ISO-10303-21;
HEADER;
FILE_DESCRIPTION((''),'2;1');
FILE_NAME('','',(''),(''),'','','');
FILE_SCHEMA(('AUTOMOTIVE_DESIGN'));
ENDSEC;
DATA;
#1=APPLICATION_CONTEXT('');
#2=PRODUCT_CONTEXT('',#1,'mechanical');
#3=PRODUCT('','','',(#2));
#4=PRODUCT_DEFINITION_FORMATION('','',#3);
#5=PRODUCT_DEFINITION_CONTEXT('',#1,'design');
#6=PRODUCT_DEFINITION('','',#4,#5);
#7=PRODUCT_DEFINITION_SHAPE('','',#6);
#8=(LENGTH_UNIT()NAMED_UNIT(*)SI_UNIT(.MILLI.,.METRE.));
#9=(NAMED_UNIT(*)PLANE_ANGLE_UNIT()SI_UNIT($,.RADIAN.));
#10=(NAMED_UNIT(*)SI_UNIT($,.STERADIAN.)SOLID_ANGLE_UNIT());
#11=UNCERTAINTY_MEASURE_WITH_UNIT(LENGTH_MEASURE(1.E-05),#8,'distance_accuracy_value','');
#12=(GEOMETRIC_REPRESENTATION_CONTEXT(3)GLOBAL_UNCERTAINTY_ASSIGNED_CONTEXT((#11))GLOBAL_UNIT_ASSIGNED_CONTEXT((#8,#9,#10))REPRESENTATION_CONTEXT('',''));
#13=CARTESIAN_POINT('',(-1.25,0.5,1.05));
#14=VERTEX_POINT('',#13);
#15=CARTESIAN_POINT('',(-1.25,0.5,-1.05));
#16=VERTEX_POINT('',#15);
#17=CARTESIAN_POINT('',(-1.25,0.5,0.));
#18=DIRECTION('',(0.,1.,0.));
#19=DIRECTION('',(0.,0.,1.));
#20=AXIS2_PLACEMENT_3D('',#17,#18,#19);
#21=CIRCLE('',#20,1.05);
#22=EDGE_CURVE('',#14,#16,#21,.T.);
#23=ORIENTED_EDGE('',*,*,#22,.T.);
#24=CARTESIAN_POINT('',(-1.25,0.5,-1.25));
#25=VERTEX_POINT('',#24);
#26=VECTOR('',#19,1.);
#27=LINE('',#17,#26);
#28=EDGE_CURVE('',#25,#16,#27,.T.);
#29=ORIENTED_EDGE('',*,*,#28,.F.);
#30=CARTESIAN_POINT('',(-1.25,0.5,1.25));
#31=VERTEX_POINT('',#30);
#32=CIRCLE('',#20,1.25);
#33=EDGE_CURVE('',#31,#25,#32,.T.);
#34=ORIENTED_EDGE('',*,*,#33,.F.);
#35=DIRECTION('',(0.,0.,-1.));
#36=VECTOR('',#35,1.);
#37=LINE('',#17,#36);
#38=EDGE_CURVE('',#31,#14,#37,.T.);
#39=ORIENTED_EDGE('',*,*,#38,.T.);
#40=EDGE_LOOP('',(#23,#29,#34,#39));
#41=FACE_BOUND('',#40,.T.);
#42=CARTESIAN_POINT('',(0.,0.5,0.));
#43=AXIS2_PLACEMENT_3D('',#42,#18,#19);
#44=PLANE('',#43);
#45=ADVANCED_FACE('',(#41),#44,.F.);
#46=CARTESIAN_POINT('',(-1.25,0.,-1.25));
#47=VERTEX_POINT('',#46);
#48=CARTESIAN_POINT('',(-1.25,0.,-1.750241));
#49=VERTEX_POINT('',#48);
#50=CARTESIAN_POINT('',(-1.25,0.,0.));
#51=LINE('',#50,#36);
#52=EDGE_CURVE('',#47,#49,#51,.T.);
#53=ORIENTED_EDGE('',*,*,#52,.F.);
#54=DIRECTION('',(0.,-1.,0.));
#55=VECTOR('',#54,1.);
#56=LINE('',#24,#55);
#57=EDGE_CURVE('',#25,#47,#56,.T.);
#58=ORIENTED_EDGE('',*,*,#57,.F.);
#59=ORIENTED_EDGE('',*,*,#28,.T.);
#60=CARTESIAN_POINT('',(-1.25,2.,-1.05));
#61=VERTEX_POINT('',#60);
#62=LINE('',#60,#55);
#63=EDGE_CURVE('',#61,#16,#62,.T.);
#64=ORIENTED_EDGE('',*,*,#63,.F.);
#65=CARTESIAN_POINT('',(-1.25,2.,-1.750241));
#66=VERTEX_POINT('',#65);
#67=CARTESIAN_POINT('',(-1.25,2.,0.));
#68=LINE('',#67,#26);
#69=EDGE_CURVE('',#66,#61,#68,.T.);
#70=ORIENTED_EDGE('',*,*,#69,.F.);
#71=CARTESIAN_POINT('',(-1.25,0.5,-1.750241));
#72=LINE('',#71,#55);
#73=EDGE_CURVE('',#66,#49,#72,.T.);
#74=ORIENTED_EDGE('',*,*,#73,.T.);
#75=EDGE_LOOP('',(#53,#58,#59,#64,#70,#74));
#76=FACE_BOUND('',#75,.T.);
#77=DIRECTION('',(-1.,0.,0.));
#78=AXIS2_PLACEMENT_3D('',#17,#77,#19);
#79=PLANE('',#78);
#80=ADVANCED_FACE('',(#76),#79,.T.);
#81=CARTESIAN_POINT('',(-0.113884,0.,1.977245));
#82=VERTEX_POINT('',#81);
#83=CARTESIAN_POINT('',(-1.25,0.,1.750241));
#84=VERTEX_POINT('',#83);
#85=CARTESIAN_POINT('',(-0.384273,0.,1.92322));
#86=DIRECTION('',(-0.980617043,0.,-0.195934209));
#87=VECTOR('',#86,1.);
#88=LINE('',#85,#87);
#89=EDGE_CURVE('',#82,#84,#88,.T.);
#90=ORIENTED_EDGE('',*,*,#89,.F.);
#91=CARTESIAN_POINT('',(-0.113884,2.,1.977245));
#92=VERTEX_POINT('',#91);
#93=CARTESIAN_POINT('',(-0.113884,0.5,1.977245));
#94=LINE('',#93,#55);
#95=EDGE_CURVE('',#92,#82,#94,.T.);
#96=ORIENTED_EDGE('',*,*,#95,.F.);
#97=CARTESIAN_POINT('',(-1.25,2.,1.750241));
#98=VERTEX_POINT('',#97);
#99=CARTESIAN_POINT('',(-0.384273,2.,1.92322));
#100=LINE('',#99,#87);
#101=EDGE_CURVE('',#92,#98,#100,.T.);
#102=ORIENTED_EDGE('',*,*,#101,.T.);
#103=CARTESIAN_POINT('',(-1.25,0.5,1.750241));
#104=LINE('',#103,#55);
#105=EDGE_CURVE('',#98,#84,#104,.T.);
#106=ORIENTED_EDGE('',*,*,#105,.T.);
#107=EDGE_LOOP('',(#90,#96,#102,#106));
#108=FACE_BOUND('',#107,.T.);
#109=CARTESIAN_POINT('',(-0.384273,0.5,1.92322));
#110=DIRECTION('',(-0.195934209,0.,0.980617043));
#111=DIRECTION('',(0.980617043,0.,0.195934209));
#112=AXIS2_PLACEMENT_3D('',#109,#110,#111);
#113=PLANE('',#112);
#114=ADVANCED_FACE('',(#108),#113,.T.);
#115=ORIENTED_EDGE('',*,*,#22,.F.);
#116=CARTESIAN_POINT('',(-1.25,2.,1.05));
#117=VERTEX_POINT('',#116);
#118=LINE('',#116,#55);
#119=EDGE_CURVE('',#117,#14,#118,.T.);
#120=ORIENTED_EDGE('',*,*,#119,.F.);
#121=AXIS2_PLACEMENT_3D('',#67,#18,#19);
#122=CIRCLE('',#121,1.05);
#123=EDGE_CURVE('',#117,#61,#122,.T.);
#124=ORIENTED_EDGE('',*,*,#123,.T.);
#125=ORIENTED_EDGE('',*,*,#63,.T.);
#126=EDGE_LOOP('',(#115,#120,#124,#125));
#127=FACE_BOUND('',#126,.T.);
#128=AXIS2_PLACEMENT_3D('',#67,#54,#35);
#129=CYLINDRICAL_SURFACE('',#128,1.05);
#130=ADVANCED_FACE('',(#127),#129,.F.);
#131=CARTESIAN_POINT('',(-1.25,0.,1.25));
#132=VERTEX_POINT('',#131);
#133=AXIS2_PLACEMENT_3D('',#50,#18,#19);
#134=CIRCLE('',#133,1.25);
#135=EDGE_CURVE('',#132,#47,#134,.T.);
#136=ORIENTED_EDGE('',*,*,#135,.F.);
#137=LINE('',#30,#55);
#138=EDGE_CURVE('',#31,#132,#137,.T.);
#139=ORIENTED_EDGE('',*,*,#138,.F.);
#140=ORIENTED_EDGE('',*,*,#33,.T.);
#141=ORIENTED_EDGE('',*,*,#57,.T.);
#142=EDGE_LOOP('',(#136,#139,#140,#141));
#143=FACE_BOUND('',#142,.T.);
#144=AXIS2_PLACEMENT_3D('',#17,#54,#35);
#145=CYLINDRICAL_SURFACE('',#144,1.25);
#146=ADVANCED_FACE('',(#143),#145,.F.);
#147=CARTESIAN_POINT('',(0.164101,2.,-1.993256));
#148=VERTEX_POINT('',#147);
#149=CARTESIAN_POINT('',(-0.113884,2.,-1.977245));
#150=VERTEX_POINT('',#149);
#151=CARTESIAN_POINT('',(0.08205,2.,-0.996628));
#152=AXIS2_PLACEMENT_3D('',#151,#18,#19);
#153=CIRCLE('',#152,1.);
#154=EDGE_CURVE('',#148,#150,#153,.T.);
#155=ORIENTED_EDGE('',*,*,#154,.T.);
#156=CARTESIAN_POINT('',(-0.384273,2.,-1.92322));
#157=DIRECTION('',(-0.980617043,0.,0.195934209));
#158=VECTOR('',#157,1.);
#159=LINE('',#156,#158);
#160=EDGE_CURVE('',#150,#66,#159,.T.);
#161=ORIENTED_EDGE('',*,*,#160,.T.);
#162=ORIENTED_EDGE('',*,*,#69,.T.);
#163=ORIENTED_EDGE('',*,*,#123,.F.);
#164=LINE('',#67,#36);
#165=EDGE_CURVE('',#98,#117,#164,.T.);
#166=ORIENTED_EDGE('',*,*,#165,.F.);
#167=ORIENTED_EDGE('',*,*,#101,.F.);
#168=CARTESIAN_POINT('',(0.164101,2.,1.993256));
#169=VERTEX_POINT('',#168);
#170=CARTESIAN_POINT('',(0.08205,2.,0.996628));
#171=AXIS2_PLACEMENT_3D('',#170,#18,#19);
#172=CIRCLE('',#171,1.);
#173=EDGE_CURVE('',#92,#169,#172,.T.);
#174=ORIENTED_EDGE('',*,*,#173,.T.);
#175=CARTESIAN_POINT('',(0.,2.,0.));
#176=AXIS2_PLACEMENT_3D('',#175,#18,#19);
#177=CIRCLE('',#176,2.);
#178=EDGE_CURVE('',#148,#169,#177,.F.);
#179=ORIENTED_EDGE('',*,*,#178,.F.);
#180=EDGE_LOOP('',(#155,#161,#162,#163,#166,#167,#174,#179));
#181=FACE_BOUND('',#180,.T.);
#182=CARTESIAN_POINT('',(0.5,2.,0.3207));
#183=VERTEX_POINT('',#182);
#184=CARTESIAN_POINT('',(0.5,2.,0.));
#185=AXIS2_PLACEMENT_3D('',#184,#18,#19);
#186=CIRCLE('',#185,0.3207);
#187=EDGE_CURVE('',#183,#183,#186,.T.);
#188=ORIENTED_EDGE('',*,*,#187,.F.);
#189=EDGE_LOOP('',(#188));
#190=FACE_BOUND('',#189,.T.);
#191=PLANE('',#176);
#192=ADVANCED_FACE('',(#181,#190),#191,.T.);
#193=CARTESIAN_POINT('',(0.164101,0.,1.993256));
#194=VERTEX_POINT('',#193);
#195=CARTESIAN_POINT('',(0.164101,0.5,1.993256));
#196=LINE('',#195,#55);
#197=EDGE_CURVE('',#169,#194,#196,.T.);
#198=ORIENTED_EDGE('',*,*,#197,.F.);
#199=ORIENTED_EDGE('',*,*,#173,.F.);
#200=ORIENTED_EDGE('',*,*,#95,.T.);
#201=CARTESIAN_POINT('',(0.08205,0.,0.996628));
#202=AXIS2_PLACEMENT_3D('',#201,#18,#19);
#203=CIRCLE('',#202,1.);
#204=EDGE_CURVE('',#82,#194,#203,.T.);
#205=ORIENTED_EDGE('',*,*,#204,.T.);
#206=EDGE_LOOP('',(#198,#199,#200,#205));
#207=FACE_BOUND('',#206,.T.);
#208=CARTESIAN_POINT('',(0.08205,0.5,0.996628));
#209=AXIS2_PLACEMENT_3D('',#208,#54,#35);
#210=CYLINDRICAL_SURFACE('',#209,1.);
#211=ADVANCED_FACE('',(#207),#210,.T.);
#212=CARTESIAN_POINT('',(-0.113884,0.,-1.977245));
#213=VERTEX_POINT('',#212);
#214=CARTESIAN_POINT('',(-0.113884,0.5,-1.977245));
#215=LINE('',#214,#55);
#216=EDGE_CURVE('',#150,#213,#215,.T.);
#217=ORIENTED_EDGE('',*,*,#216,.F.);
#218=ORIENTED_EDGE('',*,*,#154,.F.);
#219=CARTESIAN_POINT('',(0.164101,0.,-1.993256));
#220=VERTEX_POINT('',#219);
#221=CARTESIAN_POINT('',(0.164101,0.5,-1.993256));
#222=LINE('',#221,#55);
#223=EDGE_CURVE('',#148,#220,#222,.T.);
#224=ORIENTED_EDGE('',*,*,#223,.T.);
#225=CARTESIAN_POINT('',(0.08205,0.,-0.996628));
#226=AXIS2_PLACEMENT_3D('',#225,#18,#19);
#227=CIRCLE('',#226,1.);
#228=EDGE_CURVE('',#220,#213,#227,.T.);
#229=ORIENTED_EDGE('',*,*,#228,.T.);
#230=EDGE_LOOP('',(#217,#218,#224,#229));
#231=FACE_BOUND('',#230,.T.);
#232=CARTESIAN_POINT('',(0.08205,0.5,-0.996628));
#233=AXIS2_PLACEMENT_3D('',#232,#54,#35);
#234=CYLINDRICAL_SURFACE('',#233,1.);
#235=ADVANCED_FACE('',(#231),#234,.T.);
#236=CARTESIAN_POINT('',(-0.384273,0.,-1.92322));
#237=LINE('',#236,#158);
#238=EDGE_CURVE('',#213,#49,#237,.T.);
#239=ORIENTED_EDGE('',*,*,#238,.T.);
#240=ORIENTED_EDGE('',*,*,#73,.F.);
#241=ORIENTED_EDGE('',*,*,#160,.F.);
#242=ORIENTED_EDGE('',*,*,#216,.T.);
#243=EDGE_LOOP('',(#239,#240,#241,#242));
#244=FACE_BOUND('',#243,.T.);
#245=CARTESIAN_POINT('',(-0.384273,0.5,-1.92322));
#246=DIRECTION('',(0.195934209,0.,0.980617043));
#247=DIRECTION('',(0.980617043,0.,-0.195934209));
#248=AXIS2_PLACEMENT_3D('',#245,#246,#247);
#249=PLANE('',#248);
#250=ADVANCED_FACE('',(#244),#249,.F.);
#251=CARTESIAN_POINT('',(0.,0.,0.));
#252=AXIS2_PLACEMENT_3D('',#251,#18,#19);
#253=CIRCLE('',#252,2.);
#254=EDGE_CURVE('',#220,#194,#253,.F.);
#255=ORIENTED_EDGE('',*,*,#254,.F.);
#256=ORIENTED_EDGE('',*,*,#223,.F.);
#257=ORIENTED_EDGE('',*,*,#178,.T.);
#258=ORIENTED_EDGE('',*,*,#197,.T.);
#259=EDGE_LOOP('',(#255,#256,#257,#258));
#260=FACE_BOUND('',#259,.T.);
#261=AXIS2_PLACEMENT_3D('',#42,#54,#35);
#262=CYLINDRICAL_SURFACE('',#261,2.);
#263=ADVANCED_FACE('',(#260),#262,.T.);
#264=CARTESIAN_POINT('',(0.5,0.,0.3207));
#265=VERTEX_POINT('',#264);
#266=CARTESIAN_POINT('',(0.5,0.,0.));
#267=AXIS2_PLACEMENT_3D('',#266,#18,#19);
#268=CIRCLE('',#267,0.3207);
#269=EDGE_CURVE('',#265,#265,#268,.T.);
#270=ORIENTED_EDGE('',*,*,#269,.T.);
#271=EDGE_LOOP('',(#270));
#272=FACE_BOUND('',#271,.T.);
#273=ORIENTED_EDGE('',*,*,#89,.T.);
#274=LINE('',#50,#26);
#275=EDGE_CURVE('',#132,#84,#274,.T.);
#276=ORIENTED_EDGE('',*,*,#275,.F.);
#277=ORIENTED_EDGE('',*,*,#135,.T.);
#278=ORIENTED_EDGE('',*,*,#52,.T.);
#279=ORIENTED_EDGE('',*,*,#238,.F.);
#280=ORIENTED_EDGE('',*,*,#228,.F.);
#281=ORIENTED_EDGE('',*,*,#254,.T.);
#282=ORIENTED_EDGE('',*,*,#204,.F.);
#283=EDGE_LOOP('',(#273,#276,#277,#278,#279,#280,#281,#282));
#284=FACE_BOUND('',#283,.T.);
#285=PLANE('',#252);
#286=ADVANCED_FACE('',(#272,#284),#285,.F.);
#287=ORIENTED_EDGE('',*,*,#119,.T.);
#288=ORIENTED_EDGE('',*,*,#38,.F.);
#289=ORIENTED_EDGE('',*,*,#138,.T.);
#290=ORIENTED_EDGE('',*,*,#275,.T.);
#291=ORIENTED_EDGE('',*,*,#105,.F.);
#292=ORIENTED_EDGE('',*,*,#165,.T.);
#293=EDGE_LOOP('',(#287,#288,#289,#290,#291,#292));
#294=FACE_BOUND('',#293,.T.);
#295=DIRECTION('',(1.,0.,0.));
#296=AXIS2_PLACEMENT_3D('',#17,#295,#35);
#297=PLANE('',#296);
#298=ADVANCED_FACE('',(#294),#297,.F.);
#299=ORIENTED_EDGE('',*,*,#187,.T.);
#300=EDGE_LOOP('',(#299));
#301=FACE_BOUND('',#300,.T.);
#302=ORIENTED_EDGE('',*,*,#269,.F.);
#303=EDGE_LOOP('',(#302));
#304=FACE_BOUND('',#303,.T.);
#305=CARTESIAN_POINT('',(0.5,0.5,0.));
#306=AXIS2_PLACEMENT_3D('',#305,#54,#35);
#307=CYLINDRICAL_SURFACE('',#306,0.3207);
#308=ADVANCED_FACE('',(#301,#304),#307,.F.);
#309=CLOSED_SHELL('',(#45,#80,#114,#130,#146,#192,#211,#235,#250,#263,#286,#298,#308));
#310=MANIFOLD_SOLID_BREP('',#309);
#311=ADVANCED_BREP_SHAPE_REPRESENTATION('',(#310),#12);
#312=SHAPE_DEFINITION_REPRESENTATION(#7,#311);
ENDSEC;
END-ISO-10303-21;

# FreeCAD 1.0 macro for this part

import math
import FreeCAD as App
import Part
import Sketcher

doc = App.newDocument("Part")
body = doc.addObject("PartDesign::Body", "Body")

sketch1 = body.newObject("Sketcher::SketchObject", "Sketch")
sketch1.AttachmentSupport = (doc.getObject("XZ_Plane"), [""])
sketch1.MapMode = "FlatFace"
sketch1.addGeometry([
    Part.ArcOfCircle(Part.Circle(App.Vector(0.08, -1, 0), App.Vector(0, 0, 1), 1), math.radians(-101.3), math.radians(-85.29)),
    Part.LineSegment(App.Vector(-0.11, -1.98, 0), App.Vector(-1.25, -1.75, 0)),
    Part.LineSegment(App.Vector(-1.25, -1.75, 0), App.Vector(-1.25, -1.25, 0)),
    Part.ArcOfCircle(Part.Circle(App.Vector(-1.25, 0, 0), App.Vector(0, 0, 1), 1.25), math.radians(-90), math.radians(0)),
    Part.ArcOfCircle(Part.Circle(App.Vector(-1.25, 0, 0), App.Vector(0, 0, 1), 1.25), math.radians(0), math.radians(90)),
    Part.LineSegment(App.Vector(-1.25, 1.25, 0), App.Vector(-1.25, 1.75, 0)),
    Part.LineSegment(App.Vector(-1.25, 1.75, 0), App.Vector(-0.11, 1.98, 0)),
    Part.ArcOfCircle(Part.Circle(App.Vector(0.08, 1, 0), App.Vector(0, 0, 1), 1), math.radians(85.29), math.radians(101.3)),
    Part.ArcOfCircle(Part.Circle(App.Vector(0, 0, 0), App.Vector(0, 0, 1), 2), math.radians(-85), math.radians(85)),
    Part.Circle(App.Vector(0.5, 0, 0), App.Vector(0, 0, 1), 0.32),
], False)
sketch1.addConstraint([
    Sketcher.Constraint("Tangent", 0, 1, 1, 1),
    Sketcher.Constraint("Coincident", 1, 2, 2, 1),
    Sketcher.Constraint("Coincident", 2, 2, 3, 1),
    Sketcher.Constraint("Tangent", 3, 2, 4, 1),
    Sketcher.Constraint("Coincident", 4, 2, 5, 1),
    Sketcher.Constraint("Coincident", 5, 2, 6, 1),
    Sketcher.Constraint("Tangent", 6, 2, 7, 2),
    Sketcher.Constraint("Tangent", 7, 1, 8, 2),
    Sketcher.Constraint("Tangent", 8, 1, 0, 2),
    Sketcher.Constraint("Vertical", 2),
    Sketcher.Constraint("Vertical", 5),
    Sketcher.Constraint("Coincident", 8, 3, -1, 1),
    Sketcher.Constraint("Coincident", 3, 2, -1, 1),
    Sketcher.Constraint("Equal", 3, 4),
    Sketcher.Constraint("Equal", 0, 7),
    Sketcher.Constraint("Symmetric", 2, 2, 4, 2, -1),
    Sketcher.Constraint("Symmetric", 0, 1, 6, 2, -1),
    Sketcher.Constraint("PointOnObject", 9, 3, -1),
    Sketcher.Constraint("Vertical", 4, 3, 1, 2),
    Sketcher.Constraint("Radius", 0, 1.0),
    Sketcher.Constraint("Radius", 8, 2.0),
    Sketcher.Constraint("Radius", 3, 1.25),
    Sketcher.Constraint("Diameter", 9, 0.6414),
    Sketcher.Constraint("DistanceX", -1, 1, 9, 3, 0.5),
    Sketcher.Constraint("DistanceY", 2, 1, 2, 2, 0.500241),
    Sketcher.Constraint("DistanceX", -1, 1, 7, 1, 0.164101),
])
pad1 = body.newObject("PartDesign::Pad", "Pad")
pad1.Profile = sketch1
pad1.Length = 0.5
pad1.Reversed = True

sketch2 = body.newObject("Sketcher::SketchObject", "Sketch001")
sketch2.AttachmentSupport = (doc.getObject("XZ_Plane"), [""])
sketch2.MapMode = "FlatFace"
sketch2.AttachmentOffset = App.Placement(App.Vector(0, 0, -0.5), App.Rotation())
sketch2.addGeometry([
    Part.ArcOfCircle(Part.Circle(App.Vector(-1.25, 0, 0), App.Vector(0, 0, 1), 1.05), math.radians(-90), math.radians(0)),
    Part.ArcOfCircle(Part.Circle(App.Vector(-1.25, 0, 0), App.Vector(0, 0, 1), 1.05), math.radians(0), math.radians(90)),
    Part.LineSegment(App.Vector(-1.25, 1.05, 0), App.Vector(-1.25, 1.75, 0)),
    Part.LineSegment(App.Vector(-1.25, 1.75, 0), App.Vector(-0.11, 1.98, 0)),
    Part.ArcOfCircle(Part.Circle(App.Vector(0.08, 1, 0), App.Vector(0, 0, 1), 1), math.radians(85.29), math.radians(101.3)),
    Part.ArcOfCircle(Part.Circle(App.Vector(0, 0, 0), App.Vector(0, 0, 1), 2), math.radians(-85), math.radians(85)),
    Part.ArcOfCircle(Part.Circle(App.Vector(0.08, -1, 0), App.Vector(0, 0, 1), 1), math.radians(-101.3), math.radians(-85.29)),
    Part.LineSegment(App.Vector(-0.11, -1.98, 0), App.Vector(-1.25, -1.75, 0)),
    Part.LineSegment(App.Vector(-1.25, -1.75, 0), App.Vector(-1.25, -1.05, 0)),
    Part.Circle(App.Vector(0.5, 0, 0), App.Vector(0, 0, 1), 0.32),
], False)
sketch2.addConstraint([
    Sketcher.Constraint("Tangent", 0, 2, 1, 1),
    Sketcher.Constraint("Coincident", 1, 2, 2, 1),
    Sketcher.Constraint("Coincident", 2, 2, 3, 1),
    Sketcher.Constraint("Tangent", 3, 2, 4, 2),
    Sketcher.Constraint("Tangent", 4, 1, 5, 2),
    Sketcher.Constraint("Tangent", 5, 1, 6, 2),
    Sketcher.Constraint("Tangent", 6, 1, 7, 1),
    Sketcher.Constraint("Coincident", 7, 2, 8, 1),
    Sketcher.Constraint("Coincident", 8, 2, 0, 1),
    Sketcher.Constraint("Vertical", 2),
    Sketcher.Constraint("Vertical", 8),
    Sketcher.Constraint("Coincident", 5, 3, -1, 1),
    Sketcher.Constraint("Equal", 0, 1),
    Sketcher.Constraint("Equal", 4, 6),
    Sketcher.Constraint("Symmetric", 3, 2, 6, 1, -1),
    Sketcher.Constraint("Symmetric", 1, 2, 8, 2, -1),
    Sketcher.Constraint("PointOnObject", 9, 3, -1),
    Sketcher.Constraint("PointOnObject", 0, 2, -1),
    Sketcher.Constraint("Vertical", 0, 3, 1, 2),
    Sketcher.Constraint("Radius", 4, 1.0),
    Sketcher.Constraint("Radius", 5, 2.0),
    Sketcher.Constraint("Radius", 0, 1.05),
    Sketcher.Constraint("Diameter", 9, 0.6414),
    Sketcher.Constraint("DistanceX", -1, 1, 9, 3, 0.5),
    Sketcher.Constraint("DistanceX", 0, 2, -1, 1, 0.2),
    Sketcher.Constraint("DistanceY", 2, 1, 2, 2, 0.700241),
    Sketcher.Constraint("DistanceX", -1, 1, 4, 1, 0.164101),
])
pad2 = body.newObject("PartDesign::Pad", "Pad001")
pad2.Profile = sketch2
pad2.Length = 1.5
pad2.Reversed = True

doc.recompute()
